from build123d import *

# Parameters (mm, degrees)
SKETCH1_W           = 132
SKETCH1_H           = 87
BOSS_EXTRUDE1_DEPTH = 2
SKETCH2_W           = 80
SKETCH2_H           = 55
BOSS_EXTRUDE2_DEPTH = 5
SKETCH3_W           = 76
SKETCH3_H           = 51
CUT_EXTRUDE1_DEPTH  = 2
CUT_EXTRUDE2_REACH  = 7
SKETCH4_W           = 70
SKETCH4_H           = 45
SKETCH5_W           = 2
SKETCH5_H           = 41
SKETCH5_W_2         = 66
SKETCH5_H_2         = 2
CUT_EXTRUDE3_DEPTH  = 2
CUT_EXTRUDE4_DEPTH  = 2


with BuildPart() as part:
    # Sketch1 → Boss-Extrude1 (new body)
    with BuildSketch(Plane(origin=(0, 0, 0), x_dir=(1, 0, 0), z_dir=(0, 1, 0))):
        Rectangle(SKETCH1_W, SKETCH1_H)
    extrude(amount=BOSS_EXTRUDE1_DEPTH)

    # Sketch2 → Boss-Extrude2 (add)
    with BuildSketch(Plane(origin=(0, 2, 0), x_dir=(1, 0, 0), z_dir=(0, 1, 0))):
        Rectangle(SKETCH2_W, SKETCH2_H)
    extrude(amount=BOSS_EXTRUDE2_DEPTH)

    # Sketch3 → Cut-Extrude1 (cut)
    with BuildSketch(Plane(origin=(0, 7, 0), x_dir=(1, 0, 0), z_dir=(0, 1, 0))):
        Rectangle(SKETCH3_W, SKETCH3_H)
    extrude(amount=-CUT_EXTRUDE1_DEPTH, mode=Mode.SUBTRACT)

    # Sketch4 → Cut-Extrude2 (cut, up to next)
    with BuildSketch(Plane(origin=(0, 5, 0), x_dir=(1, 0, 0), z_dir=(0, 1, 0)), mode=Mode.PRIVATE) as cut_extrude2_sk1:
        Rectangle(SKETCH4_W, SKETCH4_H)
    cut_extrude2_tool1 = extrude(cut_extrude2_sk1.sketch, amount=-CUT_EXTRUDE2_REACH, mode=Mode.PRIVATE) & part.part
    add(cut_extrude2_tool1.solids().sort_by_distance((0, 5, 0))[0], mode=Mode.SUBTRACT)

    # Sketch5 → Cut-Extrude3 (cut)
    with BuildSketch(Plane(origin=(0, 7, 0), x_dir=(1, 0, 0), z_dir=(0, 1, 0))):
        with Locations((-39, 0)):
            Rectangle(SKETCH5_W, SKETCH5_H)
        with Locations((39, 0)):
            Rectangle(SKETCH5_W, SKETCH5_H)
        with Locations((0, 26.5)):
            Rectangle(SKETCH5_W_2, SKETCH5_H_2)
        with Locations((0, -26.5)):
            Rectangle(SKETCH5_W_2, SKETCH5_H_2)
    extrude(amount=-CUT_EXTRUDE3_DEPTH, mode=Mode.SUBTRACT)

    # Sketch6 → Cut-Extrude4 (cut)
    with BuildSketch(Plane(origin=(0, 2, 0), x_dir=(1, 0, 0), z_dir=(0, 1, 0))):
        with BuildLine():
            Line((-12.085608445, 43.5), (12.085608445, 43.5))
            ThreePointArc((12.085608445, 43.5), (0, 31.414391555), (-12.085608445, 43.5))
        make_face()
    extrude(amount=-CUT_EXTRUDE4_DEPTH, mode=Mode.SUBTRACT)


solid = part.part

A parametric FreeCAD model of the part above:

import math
import FreeCAD as App
import Part
import Sketcher

V = App.Vector

doc = App.newDocument("Part")
body = doc.addObject("PartDesign::Body", "Body")

# Sketch on XZ plane
sketch1 = doc.addObject("Sketcher::SketchObject", "Sketch")
body.addObject(sketch1)
sketch1.AttachmentSupport = (doc.XZ_Plane, [""])
sketch1.MapMode = "FlatFace"
sketch1.addGeometry([
    Part.LineSegment(V(-66, -44, 0), V(-66, 44, 0)),
    Part.LineSegment(V(-66, 44, 0), V(66, 44, 0)),
    Part.LineSegment(V(66, 44, 0), V(66, -44, 0)),
    Part.LineSegment(V(66, -44, 0), V(-66, -44, 0)),
], False)
sketch1.addConstraint([
    Sketcher.Constraint("Coincident", 0, 2, 1, 1),
    Sketcher.Constraint("Coincident", 1, 2, 2, 1),
    Sketcher.Constraint("Coincident", 2, 2, 3, 1),
    Sketcher.Constraint("Coincident", 3, 2, 0, 1),
    Sketcher.Constraint("Vertical", 0),
    Sketcher.Constraint("Horizontal", 1),
    Sketcher.Constraint("Vertical", 2),
    Sketcher.Constraint("Horizontal", 3),
    Sketcher.Constraint("Symmetric", 0, 2, 2, 2, -1, 1),
    Sketcher.Constraint("DistanceX", 1, 1, 1, 2, 132.0),
    Sketcher.Constraint("DistanceY", 0, 1, 0, 2, 87.0),
])
pad1 = doc.addObject("PartDesign::Pad", "Pad")
body.addObject(pad1)
pad1.Profile = sketch1
pad1.Length = 2
pad1.Reversed = True

# Sketch on XZ plane
sketch2 = doc.addObject("Sketcher::SketchObject", "Sketch001")
body.addObject(sketch2)
sketch2.AttachmentSupport = (doc.XZ_Plane, [""])
sketch2.MapMode = "FlatFace"
sketch2.AttachmentOffset = App.Placement(V(0, 0, -2), App.Rotation())
sketch2.addGeometry([
    Part.LineSegment(V(-40, -28, 0), V(-40, 28, 0)),
    Part.LineSegment(V(-40, 28, 0), V(40, 28, 0)),
    Part.LineSegment(V(40, 28, 0), V(40, -28, 0)),
    Part.LineSegment(V(40, -28, 0), V(-40, -28, 0)),
], False)
sketch2.addConstraint([
    Sketcher.Constraint("Coincident", 0, 2, 1, 1),
    Sketcher.Constraint("Coincident", 1, 2, 2, 1),
    Sketcher.Constraint("Coincident", 2, 2, 3, 1),
    Sketcher.Constraint("Coincident", 3, 2, 0, 1),
    Sketcher.Constraint("Vertical", 0),
    Sketcher.Constraint("Horizontal", 1),
    Sketcher.Constraint("Vertical", 2),
    Sketcher.Constraint("Horizontal", 3),
    Sketcher.Constraint("Symmetric", 0, 2, 2, 2, -1, 1),
    Sketcher.Constraint("DistanceX", 1, 1, 1, 2, 80.0),
    Sketcher.Constraint("DistanceY", 0, 1, 0, 2, 55.0),
])
pad2 = doc.addObject("PartDesign::Pad", "Pad001")
body.addObject(pad2)
pad2.Profile = sketch2
pad2.Length = 5
pad2.Reversed = True

# Sketch on XZ plane
sketch3 = doc.addObject("Sketcher::SketchObject", "Sketch002")
body.addObject(sketch3)
sketch3.AttachmentSupport = (doc.XZ_Plane, [""])
sketch3.MapMode = "FlatFace"
sketch3.AttachmentOffset = App.Placement(V(0, 0, -7), App.Rotation())
sketch3.addGeometry([
    Part.LineSegment(V(-38, -26, 0), V(-38, 26, 0)),
    Part.LineSegment(V(-38, 26, 0), V(38, 26, 0)),
    Part.LineSegment(V(38, 26, 0), V(38, -26, 0)),
    Part.LineSegment(V(38, -26, 0), V(-38, -26, 0)),
], False)
sketch3.addConstraint([
    Sketcher.Constraint("Coincident", 0, 2, 1, 1),
    Sketcher.Constraint("Coincident", 1, 2, 2, 1),
    Sketcher.Constraint("Coincident", 2, 2, 3, 1),
    Sketcher.Constraint("Coincident", 3, 2, 0, 1),
    Sketcher.Constraint("Vertical", 0),
    Sketcher.Constraint("Horizontal", 1),
    Sketcher.Constraint("Vertical", 2),
    Sketcher.Constraint("Horizontal", 3),
    Sketcher.Constraint("Symmetric", 0, 2, 2, 2, -1, 1),
    Sketcher.Constraint("DistanceX", 1, 1, 1, 2, 76.0),
    Sketcher.Constraint("DistanceY", 0, 1, 0, 2, 51.0),
])
pocket1 = doc.addObject("PartDesign::Pocket", "Pocket")
body.addObject(pocket1)
pocket1.Profile = sketch3
pocket1.Length = 2
pocket1.Reversed = True

# Sketch on XZ plane
sketch4 = doc.addObject("Sketcher::SketchObject", "Sketch003")
body.addObject(sketch4)
sketch4.AttachmentSupport = (doc.XZ_Plane, [""])
sketch4.MapMode = "FlatFace"
sketch4.AttachmentOffset = App.Placement(V(0, 0, -5), App.Rotation())
sketch4.addGeometry([
    Part.LineSegment(V(-35, -22, 0), V(-35, 22, 0)),
    Part.LineSegment(V(-35, 22, 0), V(35, 22, 0)),
    Part.LineSegment(V(35, 22, 0), V(35, -22, 0)),
    Part.LineSegment(V(35, -22, 0), V(-35, -22, 0)),
], False)
sketch4.addConstraint([
    Sketcher.Constraint("Coincident", 0, 2, 1, 1),
    Sketcher.Constraint("Coincident", 1, 2, 2, 1),
    Sketcher.Constraint("Coincident", 2, 2, 3, 1),
    Sketcher.Constraint("Coincident", 3, 2, 0, 1),
    Sketcher.Constraint("Vertical", 0),
    Sketcher.Constraint("Horizontal", 1),
    Sketcher.Constraint("Vertical", 2),
    Sketcher.Constraint("Horizontal", 3),
    Sketcher.Constraint("Symmetric", 0, 2, 2, 2, -1, 1),
    Sketcher.Constraint("DistanceX", 1, 1, 1, 2, 70.0),
    Sketcher.Constraint("DistanceY", 0, 1, 0, 2, 45.0),
])
pocket2 = doc.addObject("PartDesign::Pocket", "Pocket001")
body.addObject(pocket2)
pocket2.Profile = sketch4
pocket2.Type = "UpToFirst"
pocket2.Reversed = True

# Sketch on XZ plane
sketch5 = doc.addObject("Sketcher::SketchObject", "Sketch004")
body.addObject(sketch5)
sketch5.AttachmentSupport = (doc.XZ_Plane, [""])
sketch5.MapMode = "FlatFace"
sketch5.AttachmentOffset = App.Placement(V(0, 0, -7), App.Rotation())
sketch5.addGeometry([
    Part.LineSegment(V(-40, -20.5, 0), V(-40, 20.5, 0)),  # 0
    Part.LineSegment(V(-40, 20.5, 0), V(-38, 20.5, 0)),  # 1
    Part.LineSegment(V(-38, 20.5, 0), V(-38, -20.5, 0)),  # 2
    Part.LineSegment(V(-38, -20.5, 0), V(-40, -20.5, 0)),  # 3
    Part.LineSegment(V(38, -20.5, 0), V(38, 20.5, 0)),  # 4
    Part.LineSegment(V(38, 20.5, 0), V(40, 20.5, 0)),  # 5
    Part.LineSegment(V(40, 20.5, 0), V(40, -20.5, 0)),  # 6
    Part.LineSegment(V(40, -20.5, 0), V(38, -20.5, 0)),  # 7
    Part.LineSegment(V(-33, -27.5, 0), V(-33, -25.5, 0)),  # 8
    Part.LineSegment(V(-33, -25.5, 0), V(33, -25.5, 0)),  # 9
    Part.LineSegment(V(33, -25.5, 0), V(33, -27.5, 0)),  # 10
    Part.LineSegment(V(33, -27.5, 0), V(-33, -27.5, 0)),  # 11
    Part.LineSegment(V(-33, 25.5, 0), V(-33, 27.5, 0)),  # 12
    Part.LineSegment(V(-33, 27.5, 0), V(33, 27.5, 0)),  # 13
    Part.LineSegment(V(33, 27.5, 0), V(33, 25.5, 0)),  # 14
    Part.LineSegment(V(33, 25.5, 0), V(-33, 25.5, 0)),  # 15
], False)
sketch5.addConstraint([
    Sketcher.Constraint("Coincident", 0, 2, 1, 1),
    Sketcher.Constraint("Coincident", 1, 2, 2, 1),
    Sketcher.Constraint("Coincident", 2, 2, 3, 1),
    Sketcher.Constraint("Coincident", 3, 2, 0, 1),
    Sketcher.Constraint("Coincident", 4, 2, 5, 1),
    Sketcher.Constraint("Coincident", 5, 2, 6, 1),
    Sketcher.Constraint("Coincident", 6, 2, 7, 1),
    Sketcher.Constraint("Coincident", 7, 2, 4, 1),
    Sketcher.Constraint("Coincident", 8, 2, 9, 1),
    Sketcher.Constraint("Coincident", 9, 2, 10, 1),
    Sketcher.Constraint("Coincident", 10, 2, 11, 1),
    Sketcher.Constraint("Coincident", 11, 2, 8, 1),
    Sketcher.Constraint("Coincident", 12, 2, 13, 1),
    Sketcher.Constraint("Coincident", 13, 2, 14, 1),
    Sketcher.Constraint("Coincident", 14, 2, 15, 1),
    Sketcher.Constraint("Coincident", 15, 2, 12, 1),
    Sketcher.Constraint("Vertical", 0),
    Sketcher.Constraint("Horizontal", 1),
    Sketcher.Constraint("Vertical", 2),
    Sketcher.Constraint("Horizontal", 3),
    Sketcher.Constraint("Vertical", 4),
    Sketcher.Constraint("Horizontal", 5),
    Sketcher.Constraint("Vertical", 6),
    Sketcher.Constraint("Horizontal", 7),
    Sketcher.Constraint("Vertical", 8),
    Sketcher.Constraint("Horizontal", 9),
    Sketcher.Constraint("Vertical", 10),
    Sketcher.Constraint("Horizontal", 11),
    Sketcher.Constraint("Vertical", 12),
    Sketcher.Constraint("Horizontal", 13),
    Sketcher.Constraint("Vertical", 14),
    Sketcher.Constraint("Horizontal", 15),
    Sketcher.Constraint("Symmetric", 2, 2, 4, 2, -1, 1),
    Sketcher.Constraint("Symmetric", 0, 2, 6, 2, -1, 1),
    Sketcher.Constraint("Symmetric", 10, 2, 12, 2, -1, 1),
    Sketcher.Constraint("Symmetric", 8, 2, 14, 2, -1, 1),
    Sketcher.Constraint("Horizontal", 1, 2, 4, 2),
    Sketcher.Constraint("Vertical", 11, 2, 12, 2),
    Sketcher.Constraint("Equal", 7, 8),
    Sketcher.Constraint("DistanceX", 1, 1, 1, 2, 2.0),
    Sketcher.Constraint("DistanceX", 9, 1, 9, 2, 66.0),
    Sketcher.Constraint("DistanceY", 0, 1, 0, 2, 41.0),
    Sketcher.Constraint("DistanceX", 0, 2, -1, 1, 40.0),
    Sketcher.Constraint("DistanceY", 8, 2, 2, 2, 5.0),
])
pocket3 = doc.addObject("PartDesign::Pocket", "Pocket002")
body.addObject(pocket3)
pocket3.Profile = sketch5
pocket3.Length = 2
pocket3.Reversed = True

# Sketch on XZ plane
sketch6 = doc.addObject("Sketcher::SketchObject", "Sketch005")
body.addObject(sketch6)
sketch6.AttachmentSupport = (doc.XZ_Plane, [""])
sketch6.MapMode = "FlatFace"
sketch6.AttachmentOffset = App.Placement(V(0, 0, -2), App.Rotation())
sketch6.addGeometry([
    Part.LineSegment(V(12, -44, 0), V(-12, -44, 0)),
    Part.ArcOfCircle(Part.Circle(V(0, -44, 0), V(0, 0, 1), 12), math.radians(0), math.radians(180)),
], False)
sketch6.addConstraint([
    Sketcher.Constraint("Coincident", 0, 1, 1, 1),
    Sketcher.Constraint("Coincident", 1, 2, 0, 2),
    Sketcher.Constraint("Horizontal", 0),
    Sketcher.Constraint("PointOnObject", 1, 3, -2),
    Sketcher.Constraint("Horizontal", 1, 3, 0, 1),
    Sketcher.Constraint("DistanceY", 1, 3, -1, 1, 43.5),
    Sketcher.Constraint("Radius", 1, 12.085608),
])
pocket4 = doc.addObject("PartDesign::Pocket", "Pocket003")
body.addObject(pocket4)
pocket4.Profile = sketch6
pocket4.Length = 2
pocket4.Reversed = True

doc.recompute()
